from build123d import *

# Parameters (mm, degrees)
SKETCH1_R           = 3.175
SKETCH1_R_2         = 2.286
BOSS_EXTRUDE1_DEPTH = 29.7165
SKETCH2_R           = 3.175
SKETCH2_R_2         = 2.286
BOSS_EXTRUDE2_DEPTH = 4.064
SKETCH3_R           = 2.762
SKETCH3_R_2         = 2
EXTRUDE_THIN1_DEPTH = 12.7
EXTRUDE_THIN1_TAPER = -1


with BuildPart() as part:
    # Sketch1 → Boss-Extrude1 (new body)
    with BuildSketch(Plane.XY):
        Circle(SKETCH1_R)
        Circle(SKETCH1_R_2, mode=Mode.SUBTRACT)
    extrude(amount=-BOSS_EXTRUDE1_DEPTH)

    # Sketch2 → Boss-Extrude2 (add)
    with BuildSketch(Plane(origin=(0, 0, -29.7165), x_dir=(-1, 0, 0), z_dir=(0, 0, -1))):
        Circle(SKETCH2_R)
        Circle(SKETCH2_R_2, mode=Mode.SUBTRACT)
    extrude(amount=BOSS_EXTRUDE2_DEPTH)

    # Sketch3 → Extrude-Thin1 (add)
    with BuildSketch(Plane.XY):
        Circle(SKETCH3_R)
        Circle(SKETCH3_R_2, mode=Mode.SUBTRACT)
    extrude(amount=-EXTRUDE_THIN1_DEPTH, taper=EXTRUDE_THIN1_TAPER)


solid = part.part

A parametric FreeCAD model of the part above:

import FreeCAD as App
import Part
import Sketcher
from FreeCAD import Vector
Q = App.Units.Quantity

doc = App.newDocument("Part")
body = doc.addObject("PartDesign::Body", "Body")

# Sketch on XY plane
sketch1 = body.newObject("Sketcher::SketchObject", "Sketch")
sketch1.AttachmentSupport = (doc.getObject("XY_Plane"), [""])
sketch1.MapMode = "FlatFace"
sketch1.addGeometry(Part.Circle(Vector(0, 0, 0), Vector(0, 0, 1), 3.2), False)
sketch1.addGeometry(Part.Circle(Vector(0, 0, 0), Vector(0, 0, 1), 2.3), False)
sketch1.addConstraint(Sketcher.Constraint("Coincident", 0, 3, -1, 1))
sketch1.addConstraint(Sketcher.Constraint("Coincident", 1, 3, -1, 1))
sketch1.addConstraint(Sketcher.Constraint("Diameter", 0, Q("0.25 in")))
sketch1.addConstraint(Sketcher.Constraint("Diameter", 1, Q("0.18 in")))
pad1 = body.newObject("PartDesign::Pad", "Pad")
pad1.Profile = sketch1
pad1.Length = 29.7165
pad1.Reversed = True

# Sketch on XY plane
sketch2 = body.newObject("Sketcher::SketchObject", "Sketch001")
sketch2.AttachmentSupport = (doc.getObject("XY_Plane"), [""])
sketch2.MapMode = "FlatFace"
sketch2.AttachmentOffset = App.Placement(Vector(0, 0, -29.7165), App.Rotation())
sketch2.addGeometry(Part.Circle(Vector(0, 0, 0), Vector(0, 0, 1), 3.2), False)
sketch2.addGeometry(Part.Circle(Vector(0, 0, 0), Vector(0, 0, 1), 2.3), False)
sketch2.addConstraint(Sketcher.Constraint("Coincident", 0, 3, -1, 1))
sketch2.addConstraint(Sketcher.Constraint("Coincident", 1, 3, -1, 1))
sketch2.addConstraint(Sketcher.Constraint("Diameter", 0, Q("0.25 in")))
sketch2.addConstraint(Sketcher.Constraint("Diameter", 1, Q("0.18 in")))
pad2 = body.newObject("PartDesign::Pad", "Pad001")
pad2.Profile = sketch2
pad2.Length = Q("0.16 in")
pad2.Reversed = True

# Sketch on XY plane
sketch3 = body.newObject("Sketcher::SketchObject", "Sketch002")
sketch3.AttachmentSupport = (doc.getObject("XY_Plane"), [""])
sketch3.MapMode = "FlatFace"
sketch3.addGeometry(Part.Circle(Vector(0, 0, 0), Vector(0, 0, 1), 2.8), False)
sketch3.addGeometry(Part.Circle(Vector(0, 0, 0), Vector(0, 0, 1), 2), False)
sketch3.addConstraint(Sketcher.Constraint("Coincident", 0, 3, -1, 1))
sketch3.addConstraint(Sketcher.Constraint("Coincident", 1, 3, -1, 1))
sketch3.addConstraint(Sketcher.Constraint("Diameter", 0, Q("5.524 mm")))
sketch3.addConstraint(Sketcher.Constraint("Diameter", 1, Q("4 mm")))
pad3 = body.newObject("PartDesign::Pad", "Pad002")
pad3.Profile = sketch3
pad3.Length = Q("0.5 in")
pad3.Reversed = True
pad3.TaperAngle = -1

doc.recompute()
